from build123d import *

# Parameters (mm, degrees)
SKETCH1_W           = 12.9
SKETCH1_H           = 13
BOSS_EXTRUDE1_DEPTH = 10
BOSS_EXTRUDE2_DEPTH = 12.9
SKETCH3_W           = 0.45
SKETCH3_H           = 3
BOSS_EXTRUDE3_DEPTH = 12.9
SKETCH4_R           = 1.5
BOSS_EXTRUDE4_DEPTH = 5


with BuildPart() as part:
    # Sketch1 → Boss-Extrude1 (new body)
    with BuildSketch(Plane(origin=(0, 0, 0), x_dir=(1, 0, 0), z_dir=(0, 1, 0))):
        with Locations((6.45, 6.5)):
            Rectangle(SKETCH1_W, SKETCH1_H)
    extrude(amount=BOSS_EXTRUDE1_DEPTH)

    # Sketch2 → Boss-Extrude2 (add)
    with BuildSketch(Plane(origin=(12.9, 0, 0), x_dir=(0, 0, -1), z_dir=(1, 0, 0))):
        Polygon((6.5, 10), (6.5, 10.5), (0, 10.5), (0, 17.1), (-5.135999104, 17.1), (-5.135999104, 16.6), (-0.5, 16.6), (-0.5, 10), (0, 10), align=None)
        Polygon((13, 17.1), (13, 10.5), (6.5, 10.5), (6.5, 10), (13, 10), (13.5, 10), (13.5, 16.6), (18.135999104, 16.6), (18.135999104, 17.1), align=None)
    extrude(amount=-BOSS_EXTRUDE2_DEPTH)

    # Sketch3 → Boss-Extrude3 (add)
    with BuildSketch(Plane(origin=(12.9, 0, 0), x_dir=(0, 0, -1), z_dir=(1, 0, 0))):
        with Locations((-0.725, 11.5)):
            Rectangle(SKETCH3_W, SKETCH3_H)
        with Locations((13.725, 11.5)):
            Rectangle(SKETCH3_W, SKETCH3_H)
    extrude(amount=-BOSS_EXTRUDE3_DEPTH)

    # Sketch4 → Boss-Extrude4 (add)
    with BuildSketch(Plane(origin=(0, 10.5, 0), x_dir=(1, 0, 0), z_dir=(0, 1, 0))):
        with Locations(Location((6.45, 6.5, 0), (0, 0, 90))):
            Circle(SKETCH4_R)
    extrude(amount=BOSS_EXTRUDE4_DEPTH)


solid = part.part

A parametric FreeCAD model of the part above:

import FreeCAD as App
import Part
import Sketcher

V = App.Vector


def add_polygon(sketch, points):
    """Adds a closed chain of lines whose ends are joined by coincident constraints."""
    first, n = sketch.GeometryCount, len(points)
    for a, b in zip(points, points[1:] + points[:1]):
        sketch.addGeometry(Part.LineSegment(App.Vector(*a, 0), App.Vector(*b, 0)), False)
    for i in range(n):
        sketch.addConstraint(Sketcher.Constraint("Coincident", first + i, 2, first + (i + 1) % n, 1))

doc = App.newDocument("Part")
body = doc.addObject("PartDesign::Body", "Body")

sketch1 = doc.addObject("Sketcher::SketchObject", "Sketch")
body.addObject(sketch1)
sketch1.AttachmentSupport = (doc.XZ_Plane, [""])
sketch1.MapMode = "FlatFace"
add_polygon(sketch1, [(0, -13), (0, 0), (13, 0), (13, -13)])
sketch1.addConstraint([
    Sketcher.Constraint("Vertical", 0),
    Sketcher.Constraint("Horizontal", 1),
    Sketcher.Constraint("Vertical", 2),
    Sketcher.Constraint("Horizontal", 3),
    Sketcher.Constraint("Coincident", 0, 2, -1, 1),
    Sketcher.Constraint("DistanceY", 0, 1, 0, 2, 13.0),
    Sketcher.Constraint("DistanceX", 1, 1, 1, 2, 12.9),
])
pad1 = doc.addObject("PartDesign::Pad", "Pad")
body.addObject(pad1)
pad1.Profile = sketch1
pad1.Length = 10
pad1.Reversed = True

sketch2 = doc.addObject("Sketcher::SketchObject", "Sketch001")
body.addObject(sketch2)
sketch2.AttachmentSupport = (doc.YZ_Plane, [""])
sketch2.MapMode = "FlatFace"
sketch2.AttachmentOffset = App.Placement(V(0, 0, 12.9), App.Rotation())
add_polygon(sketch2, [(10.5, 0), (17.1, 0), (17.1, 5.1), (16.6, 5.1), (16.6, 0.5), (10, 0.5), (10, -13.5), (16.6, -13.5), (16.6, -18.1), (17.1, -18.1), (17.1, -13), (10.5, -13)])
sketch2.addConstraint([
    Sketcher.Constraint("Horizontal", 0),
    Sketcher.Constraint("Vertical", 1),
    Sketcher.Constraint("Horizontal", 2),
    Sketcher.Constraint("Vertical", 3),
    Sketcher.Constraint("Horizontal", 4),
    Sketcher.Constraint("Vertical", 5),
    Sketcher.Constraint("Horizontal", 6),
    Sketcher.Constraint("Vertical", 7),
    Sketcher.Constraint("Horizontal", 8),
    Sketcher.Constraint("Vertical", 9),
    Sketcher.Constraint("Horizontal", 10),
    Sketcher.Constraint("Vertical", 11),
    Sketcher.Constraint("PointOnObject", 0, 2, -1),
    Sketcher.Constraint("Vertical", 3, 2, 6, 2),
    Sketcher.Constraint("Vertical", 1, 2, 8, 2),
    Sketcher.Constraint("Equal", 0, 4),
    Sketcher.Constraint("Equal", 3, 7),
    Sketcher.Constraint("Equal", 1, 9),
    Sketcher.Constraint("DistanceY", 5, 2, 5, 1, 14.0),
    Sketcher.Constraint("DistanceY", 11, 1, 11, 2, 13.0),
    Sketcher.Constraint("DistanceX", 0, 1, 0, 2, 6.6),
    Sketcher.Constraint("DistanceX", 2, 2, 2, 1, 0.5),
    Sketcher.Constraint("DistanceX", -1, 1, 4, 2, 10.0),
    Sketcher.Constraint("DistanceY", 1, 1, 1, 2, 5.135999),
])
pad2 = doc.addObject("PartDesign::Pad", "Pad001")
body.addObject(pad2)
pad2.Profile = sketch2
pad2.Length = 12.9
pad2.Reversed = True

sketch3 = doc.addObject("Sketcher::SketchObject", "Sketch002")
body.addObject(sketch3)
sketch3.AttachmentSupport = (doc.YZ_Plane, [""])
sketch3.MapMode = "FlatFace"
sketch3.AttachmentOffset = App.Placement(V(0, 0, 12.9), App.Rotation())
add_polygon(sketch3, [(13, 0.95), (10, 0.95), (10, 0.5), (13, 0.5)])
add_polygon(sketch3, [(13, -13.5), (10, -13.5), (10, -13.95), (13, -13.95)])
sketch3.addConstraint([
    Sketcher.Constraint("Horizontal", 0),
    Sketcher.Constraint("Vertical", 1),
    Sketcher.Constraint("Horizontal", 2),
    Sketcher.Constraint("Vertical", 3),
    Sketcher.Constraint("Horizontal", 4),
    Sketcher.Constraint("Vertical", 5),
    Sketcher.Constraint("Horizontal", 6),
    Sketcher.Constraint("Vertical", 7),
    Sketcher.Constraint("Vertical", 1, 2, 4, 2),
    Sketcher.Constraint("Vertical", 3, 2, 6, 2),
    Sketcher.Constraint("Equal", 3, 5),
    Sketcher.Constraint("DistanceX", 0, 2, 0, 1, 3.0),
    Sketcher.Constraint("DistanceX", -1, 1, 0, 2, 10.0),
    Sketcher.Constraint("DistanceY", 4, 2, 1, 2, 14.0),
    Sketcher.Constraint("DistanceY", 1, 2, 1, 1, 0.45),
    Sketcher.Constraint("DistanceY", -1, 1, 1, 2, 0.5),
])
pad3 = doc.addObject("PartDesign::Pad", "Pad002")
body.addObject(pad3)
pad3.Profile = sketch3
pad3.Length = 12.9
pad3.Reversed = True

sketch4 = doc.addObject("Sketcher::SketchObject", "Sketch003")
body.addObject(sketch4)
sketch4.AttachmentSupport = (doc.XZ_Plane, [""])
sketch4.MapMode = "FlatFace"
sketch4.AttachmentOffset = App.Placement(V(0, 0, -10.5), App.Rotation())
sketch4.addGeometry(Part.Circle(V(6.5, -6.5, 0), V(0, 0, 1), 1.5), False)
sketch4.addConstraint([
    Sketcher.Constraint("Diameter", 0, 3.0),
    Sketcher.Constraint("DistanceY", 0, 3, -1, 1, 6.5),
    Sketcher.Constraint("DistanceX", -1, 1, 0, 3, 6.45),
])
pad4 = doc.addObject("PartDesign::Pad", "Pad003")
body.addObject(pad4)
pad4.Profile = sketch4
pad4.Length = 5
pad4.Reversed = True

doc.recompute()
